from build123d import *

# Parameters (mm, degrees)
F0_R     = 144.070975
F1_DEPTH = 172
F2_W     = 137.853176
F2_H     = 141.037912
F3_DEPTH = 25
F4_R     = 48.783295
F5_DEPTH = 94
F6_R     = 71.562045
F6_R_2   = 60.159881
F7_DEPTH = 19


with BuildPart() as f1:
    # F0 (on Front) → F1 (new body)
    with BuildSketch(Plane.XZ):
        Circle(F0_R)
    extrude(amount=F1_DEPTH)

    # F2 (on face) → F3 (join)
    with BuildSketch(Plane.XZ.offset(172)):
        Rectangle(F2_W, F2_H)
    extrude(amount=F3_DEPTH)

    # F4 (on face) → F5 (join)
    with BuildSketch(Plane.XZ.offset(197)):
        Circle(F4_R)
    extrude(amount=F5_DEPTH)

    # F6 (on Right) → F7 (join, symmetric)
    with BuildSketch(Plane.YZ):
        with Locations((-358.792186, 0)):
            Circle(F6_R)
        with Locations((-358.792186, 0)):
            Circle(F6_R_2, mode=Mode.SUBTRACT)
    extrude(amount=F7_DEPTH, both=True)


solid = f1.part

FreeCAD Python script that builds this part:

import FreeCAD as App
import Part
import Sketcher
from FreeCAD import Vector

doc = App.newDocument("Part")
body = doc.addObject("PartDesign::Body", "Body")

sketch1 = body.newObject("Sketcher::SketchObject", "Sketch")
sketch1.AttachmentSupport = (doc.getObject("XZ_Plane"), [""])
sketch1.MapMode = "FlatFace"
sketch1.addGeometry(Part.Circle(Vector(0, 0, 0), Vector(0, 0, 1), 144.070975), False)
sketch1.addConstraint([
    Sketcher.Constraint("Coincident", 0, 3, -1, 1),
    Sketcher.Constraint("Diameter", 0, 288.14195),
])
pad1 = body.newObject("PartDesign::Pad", "Pad")
pad1.Profile = sketch1
pad1.Length = 172

sketch2 = body.newObject("Sketcher::SketchObject", "Sketch001")
sketch2.AttachmentSupport = (doc.getObject("XZ_Plane"), [""])
sketch2.MapMode = "FlatFace"
sketch2.AttachmentOffset = App.Placement(Vector(0, 0, 172), App.Rotation())
sketch2.addGeometry([
    Part.LineSegment(Vector(-68.926588, 70.518956, 0), Vector(-68.926588, -70.518956, 0)),
    Part.LineSegment(Vector(-68.926588, -70.518956, 0), Vector(68.926588, -70.518956, 0)),
    Part.LineSegment(Vector(68.926588, -70.518956, 0), Vector(68.926588, 70.518956, 0)),
    Part.LineSegment(Vector(68.926588, 70.518956, 0), Vector(-68.926588, 70.518956, 0)),
], False)
sketch2.addConstraint([
    Sketcher.Constraint("Coincident", 0, 2, 1, 1),
    Sketcher.Constraint("Coincident", 1, 2, 2, 1),
    Sketcher.Constraint("Coincident", 2, 2, 3, 1),
    Sketcher.Constraint("Coincident", 3, 2, 0, 1),
    Sketcher.Constraint("Vertical", 0),
    Sketcher.Constraint("Horizontal", 1),
    Sketcher.Constraint("Vertical", 2),
    Sketcher.Constraint("Horizontal", 3),
    Sketcher.Constraint("Symmetric", 0, 2, 2, 2, -1, 1),
    Sketcher.Constraint("DistanceY", 0, 2, 0, 1, 141.037912),
    Sketcher.Constraint("DistanceX", 1, 1, 1, 2, 137.853176),
])
pad2 = body.newObject("PartDesign::Pad", "Pad001")
pad2.Profile = sketch2
pad2.Length = 25

sketch3 = body.newObject("Sketcher::SketchObject", "Sketch002")
sketch3.AttachmentSupport = (doc.getObject("XZ_Plane"), [""])
sketch3.MapMode = "FlatFace"
sketch3.AttachmentOffset = App.Placement(Vector(0, 0, 197), App.Rotation())
sketch3.addGeometry(Part.Circle(Vector(0, 0, 0), Vector(0, 0, 1), 48.783295), False)
sketch3.addConstraint([
    Sketcher.Constraint("Coincident", 0, 3, -1, 1),
    Sketcher.Constraint("Diameter", 0, 97.56659),
])
pad3 = body.newObject("PartDesign::Pad", "Pad002")
pad3.Profile = sketch3
pad3.Length = 94

sketch4 = body.newObject("Sketcher::SketchObject", "Sketch003")
sketch4.AttachmentSupport = (doc.getObject("YZ_Plane"), [""])
sketch4.MapMode = "FlatFace"
sketch4.addGeometry([
    Part.Circle(Vector(-358.792186, 0, 0), Vector(0, 0, 1), 71.562045),
    Part.Circle(Vector(-358.792186, 0, 0), Vector(0, 0, 1), 60.159881),
], False)
sketch4.addConstraint([
    Sketcher.Constraint("Coincident", 1, 3, 0, 3),
    Sketcher.Constraint("PointOnObject", 0, 3, -1),
    Sketcher.Constraint("Diameter", 0, 143.12409),
    Sketcher.Constraint("Diameter", 1, 120.319762),
    Sketcher.Constraint("DistanceX", 0, 3, -1, 1, 358.792186),
])
pad4 = body.newObject("PartDesign::Pad", "Pad003")
pad4.Profile = sketch4
pad4.Length = 38
pad4.Midplane = True

doc.recompute()
